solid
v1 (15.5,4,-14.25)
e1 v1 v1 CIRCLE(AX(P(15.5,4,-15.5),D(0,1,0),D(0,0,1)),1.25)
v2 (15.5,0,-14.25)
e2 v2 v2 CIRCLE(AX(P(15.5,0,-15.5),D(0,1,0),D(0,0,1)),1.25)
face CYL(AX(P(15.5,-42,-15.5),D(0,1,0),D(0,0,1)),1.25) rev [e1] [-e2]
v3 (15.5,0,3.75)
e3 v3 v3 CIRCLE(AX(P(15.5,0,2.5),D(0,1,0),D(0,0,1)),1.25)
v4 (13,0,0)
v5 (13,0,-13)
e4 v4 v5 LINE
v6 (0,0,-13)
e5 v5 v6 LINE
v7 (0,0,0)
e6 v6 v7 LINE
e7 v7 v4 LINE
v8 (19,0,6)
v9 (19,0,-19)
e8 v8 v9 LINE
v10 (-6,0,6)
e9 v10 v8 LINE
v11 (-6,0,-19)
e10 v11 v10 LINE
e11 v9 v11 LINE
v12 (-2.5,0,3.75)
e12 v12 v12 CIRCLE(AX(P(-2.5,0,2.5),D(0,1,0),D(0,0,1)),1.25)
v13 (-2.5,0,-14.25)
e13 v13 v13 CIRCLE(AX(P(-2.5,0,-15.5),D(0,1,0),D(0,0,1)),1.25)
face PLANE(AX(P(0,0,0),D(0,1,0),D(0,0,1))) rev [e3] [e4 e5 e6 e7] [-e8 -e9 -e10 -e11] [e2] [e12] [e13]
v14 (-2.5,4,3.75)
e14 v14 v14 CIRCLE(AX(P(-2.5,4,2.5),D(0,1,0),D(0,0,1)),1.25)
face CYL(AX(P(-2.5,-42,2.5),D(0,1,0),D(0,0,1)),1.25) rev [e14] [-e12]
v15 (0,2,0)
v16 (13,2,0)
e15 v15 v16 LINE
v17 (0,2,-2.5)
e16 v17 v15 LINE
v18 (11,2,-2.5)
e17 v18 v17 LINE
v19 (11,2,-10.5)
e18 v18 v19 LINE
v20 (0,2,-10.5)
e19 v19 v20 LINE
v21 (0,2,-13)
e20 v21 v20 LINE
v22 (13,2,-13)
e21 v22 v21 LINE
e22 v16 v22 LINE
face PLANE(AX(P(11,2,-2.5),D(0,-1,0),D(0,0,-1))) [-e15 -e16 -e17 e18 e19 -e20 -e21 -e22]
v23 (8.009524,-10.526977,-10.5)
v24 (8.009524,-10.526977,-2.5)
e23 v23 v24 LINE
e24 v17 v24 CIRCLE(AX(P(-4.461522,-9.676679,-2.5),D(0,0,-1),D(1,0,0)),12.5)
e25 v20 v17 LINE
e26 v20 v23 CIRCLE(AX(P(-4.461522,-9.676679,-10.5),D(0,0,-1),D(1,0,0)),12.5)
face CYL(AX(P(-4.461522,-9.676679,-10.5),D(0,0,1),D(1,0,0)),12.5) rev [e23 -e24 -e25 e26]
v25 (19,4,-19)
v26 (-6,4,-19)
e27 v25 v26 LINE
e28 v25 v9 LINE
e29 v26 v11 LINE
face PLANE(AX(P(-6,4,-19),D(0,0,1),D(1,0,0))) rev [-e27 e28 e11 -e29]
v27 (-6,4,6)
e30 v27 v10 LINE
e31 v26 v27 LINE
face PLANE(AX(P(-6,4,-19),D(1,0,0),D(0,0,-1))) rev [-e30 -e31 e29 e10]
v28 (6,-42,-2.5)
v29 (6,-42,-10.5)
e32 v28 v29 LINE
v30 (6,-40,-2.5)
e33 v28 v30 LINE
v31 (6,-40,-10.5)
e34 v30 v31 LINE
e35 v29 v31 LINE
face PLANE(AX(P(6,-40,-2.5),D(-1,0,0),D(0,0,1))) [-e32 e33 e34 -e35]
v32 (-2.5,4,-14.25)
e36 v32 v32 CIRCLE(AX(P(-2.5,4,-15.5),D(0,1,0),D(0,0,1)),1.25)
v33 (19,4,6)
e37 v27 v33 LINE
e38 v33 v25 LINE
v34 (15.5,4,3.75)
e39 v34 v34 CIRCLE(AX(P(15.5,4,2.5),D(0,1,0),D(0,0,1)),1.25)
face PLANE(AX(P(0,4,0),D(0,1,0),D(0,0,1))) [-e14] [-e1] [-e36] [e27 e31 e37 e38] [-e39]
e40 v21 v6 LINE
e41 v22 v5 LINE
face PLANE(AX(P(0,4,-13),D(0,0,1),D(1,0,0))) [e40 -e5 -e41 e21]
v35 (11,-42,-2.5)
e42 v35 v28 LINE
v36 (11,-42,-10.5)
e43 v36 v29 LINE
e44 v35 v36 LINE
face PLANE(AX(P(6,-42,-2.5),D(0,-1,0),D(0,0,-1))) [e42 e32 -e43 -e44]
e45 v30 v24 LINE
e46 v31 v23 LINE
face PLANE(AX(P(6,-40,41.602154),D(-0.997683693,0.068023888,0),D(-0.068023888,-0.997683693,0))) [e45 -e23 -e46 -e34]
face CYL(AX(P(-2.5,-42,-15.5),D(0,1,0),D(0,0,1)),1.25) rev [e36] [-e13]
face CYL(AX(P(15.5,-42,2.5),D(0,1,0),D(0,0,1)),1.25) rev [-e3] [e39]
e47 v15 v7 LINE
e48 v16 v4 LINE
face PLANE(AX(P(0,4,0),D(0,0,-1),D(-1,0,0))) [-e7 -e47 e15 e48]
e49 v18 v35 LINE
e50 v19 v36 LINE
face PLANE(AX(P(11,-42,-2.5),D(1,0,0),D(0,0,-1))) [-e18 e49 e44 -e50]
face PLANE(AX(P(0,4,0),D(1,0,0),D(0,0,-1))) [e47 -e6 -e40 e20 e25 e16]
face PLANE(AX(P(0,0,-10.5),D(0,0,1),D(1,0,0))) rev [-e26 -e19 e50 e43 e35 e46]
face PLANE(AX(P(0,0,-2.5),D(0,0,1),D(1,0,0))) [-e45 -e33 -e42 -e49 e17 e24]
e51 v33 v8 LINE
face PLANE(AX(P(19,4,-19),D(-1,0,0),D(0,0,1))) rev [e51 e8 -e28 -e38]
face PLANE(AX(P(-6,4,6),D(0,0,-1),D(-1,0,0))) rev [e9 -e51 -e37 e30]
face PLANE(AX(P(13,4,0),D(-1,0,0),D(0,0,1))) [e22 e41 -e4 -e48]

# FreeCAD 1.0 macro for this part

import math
import FreeCAD as App
import Part
import Sketcher


def add_polygon(sketch, points):
    """Adds a closed chain of lines whose ends are joined by coincident constraints."""
    first, n = sketch.GeometryCount, len(points)
    for a, b in zip(points, points[1:] + points[:1]):
        sketch.addGeometry(Part.LineSegment(App.Vector(*a, 0), App.Vector(*b, 0)), False)
    for i in range(n):
        sketch.addConstraint(Sketcher.Constraint("Coincident", first + i, 2, first + (i + 1) % n, 1))

doc = App.newDocument("Part")
body = doc.addObject("PartDesign::Body", "Body")

# Sketch on XZ plane
sketch1 = doc.addObject("Sketcher::SketchObject", "Sketch")
body.addObject(sketch1)
sketch1.AttachmentSupport = (doc.XZ_Plane, [""])
sketch1.MapMode = "FlatFace"
add_polygon(sketch1, [(-6, -19), (-6, 6), (19, 6), (19, -19)])  # lines 0-3
add_polygon(sketch1, [(13, 0), (0, 0), (0, -13), (13, -13)])  # lines 4-7
sketch1.addConstraint([
    Sketcher.Constraint("Vertical", 0),
    Sketcher.Constraint("Horizontal", 1),
    Sketcher.Constraint("Vertical", 2),
    Sketcher.Constraint("Horizontal", 3),
    Sketcher.Constraint("Horizontal", 4),
    Sketcher.Constraint("Vertical", 5),
    Sketcher.Constraint("Horizontal", 6),
    Sketcher.Constraint("Vertical", 7),
    Sketcher.Constraint("Coincident", 4, 2, -1, 1),
    Sketcher.Constraint("Equal", 3, 0),
    Sketcher.Constraint("Equal", 6, 5),
    Sketcher.Constraint("DistanceX", 1, 1, 1, 2, 25.0),
    Sketcher.Constraint("DistanceX", 4, 2, 4, 1, 13.0),
    Sketcher.Constraint("DistanceX", 0, 2, -1, 1, 6.0),
    Sketcher.Constraint("DistanceY", -1, 1, 0, 2, 6.0),
])
pad1 = doc.addObject("PartDesign::Pad", "Pad")
body.addObject(pad1)
pad1.Profile = sketch1
pad1.Length = 4
pad1.Reversed = True

# Sketch on XY plane
sketch2 = doc.addObject("Sketcher::SketchObject", "Sketch001")
body.addObject(sketch2)
sketch2.AttachmentSupport = (doc.XY_Plane, [""])
sketch2.MapMode = "FlatFace"
sketch2.AttachmentOffset = App.Placement(App.Vector(0, 0, -6.5), App.Rotation())
add_polygon(sketch2, [(9, 4), (13, 4), (13, 2), (11, 2), (11, -42), (6, -42), (6, -40), (9, -40)])  # lines 0-7
sketch2.addConstraint([
    Sketcher.Constraint("Horizontal", 0),
    Sketcher.Constraint("Vertical", 1),
    Sketcher.Constraint("Horizontal", 2),
    Sketcher.Constraint("Vertical", 3),
    Sketcher.Constraint("Horizontal", 4),
    Sketcher.Constraint("Vertical", 5),
    Sketcher.Constraint("Horizontal", 6),
    Sketcher.Constraint("Vertical", 7),
    Sketcher.Constraint("Equal", 2, 1),
    Sketcher.Constraint("Equal", 1, 5),
    Sketcher.Constraint("DistanceX", 0, 1, 0, 2, 4.0),
    Sketcher.Constraint("DistanceX", 2, 2, 2, 1, 2.0),
    Sketcher.Constraint("DistanceX", 4, 2, 4, 1, 5.0),
    Sketcher.Constraint("DistanceY", 3, 2, 3, 1, 44.0),
    Sketcher.Constraint("DistanceX", -1, 1, 0, 2, 13.0),
    Sketcher.Constraint("DistanceY", -1, 1, 0, 2, 4.0),
])
pad2 = doc.addObject("PartDesign::Pad", "Pad001")
body.addObject(pad2)
pad2.Profile = sketch2
pad2.Type = "TwoLengths"
pad2.Length = 4
pad2.Length2 = 4
pad2.Reversed = True

# Sketch on XY plane
sketch3 = doc.addObject("Sketcher::SketchObject", "Sketch002")
body.addObject(sketch3)
sketch3.AttachmentSupport = (doc.XY_Plane, [""])
sketch3.MapMode = "FlatFace"
sketch3.AttachmentOffset = App.Placement(App.Vector(0, 0, -10.5), App.Rotation())
add_polygon(sketch3, [(9, 4), (9, -40), (6, -40)])  # lines 0-2
sketch3.addConstraint([
    Sketcher.Constraint("Vertical", 0),
    Sketcher.Constraint("Horizontal", 1),
    Sketcher.Constraint("DistanceX", 1, 2, 1, 1, 3.0),
    Sketcher.Constraint("DistanceY", 0, 2, 0, 1, 44.0),
    Sketcher.Constraint("DistanceX", -1, 1, 0, 2, 9.0),
    Sketcher.Constraint("DistanceY", 0, 2, -1, 1, 40.0),
])
pad3 = doc.addObject("PartDesign::Pad", "Pad002")
body.addObject(pad3)
pad3.Profile = sketch3
pad3.Length = 8

# Sketch on XY plane
sketch4 = doc.addObject("Sketcher::SketchObject", "Sketch003")
body.addObject(sketch4)
sketch4.AttachmentSupport = (doc.XY_Plane, [""])
sketch4.MapMode = "FlatFace"
sketch4.AttachmentOffset = App.Placement(App.Vector(0, 0, -2.5), App.Rotation())
sketch4.addGeometry([
    Part.LineSegment(App.Vector(9, 4, 0), App.Vector(0, 4, 0)),
    Part.LineSegment(App.Vector(0, 4, 0), App.Vector(0, 2, 0)),
    Part.ArcOfCircle(Part.Circle(App.Vector(-4.5, -9.7, 0), App.Vector(0, 0, 1), 12.5), math.radians(-4), math.radians(69)),
    Part.LineSegment(App.Vector(8, -10.5, 0), App.Vector(9, 4, 0)),
], False)
sketch4.addConstraint([
    Sketcher.Constraint("Coincident", 0, 2, 1, 1),
    Sketcher.Constraint("Coincident", 1, 2, 2, 2),
    Sketcher.Constraint("Tangent", 2, 1, 3, 1),
    Sketcher.Constraint("Coincident", 3, 2, 0, 1),
    Sketcher.Constraint("Horizontal", 0),
    Sketcher.Constraint("Vertical", 1),
    Sketcher.Constraint("PointOnObject", 0, 2, -2),
    Sketcher.Constraint("Radius", 2, 12.5),
    Sketcher.Constraint("DistanceX", 0, 2, 0, 1, 9.0),
    Sketcher.Constraint("DistanceY", 1, 2, 1, 1, 2.0),
    Sketcher.Constraint("DistanceY", -1, 1, 0, 2, 4.0),
    Sketcher.Constraint("DistanceY", 2, 1, 2, 3, 0.850299),
])
pad4 = doc.addObject("PartDesign::Pad", "Pad003")
body.addObject(pad4)
pad4.Profile = sketch4
pad4.Length = 8
pad4.Reversed = True

# Sketch on XZ plane
sketch5 = doc.addObject("Sketcher::SketchObject", "Sketch004")
body.addObject(sketch5)
sketch5.AttachmentSupport = (doc.XZ_Plane, [""])
sketch5.MapMode = "FlatFace"
sketch5.AttachmentOffset = App.Placement(App.Vector(0, 0, -4), App.Rotation())
add_polygon(sketch5, [(0, -13), (0, 0), (13, 0), (13, -13)])  # lines 0-3
sketch5.addConstraint([
    Sketcher.Constraint("Vertical", 0),
    Sketcher.Constraint("Horizontal", 1),
    Sketcher.Constraint("Vertical", 2),
    Sketcher.Constraint("Horizontal", 3),
    Sketcher.Constraint("PointOnObject", 0, 2, -2),
    Sketcher.Constraint("DistanceX", 1, 1, 1, 2, 13.0),
    Sketcher.Constraint("DistanceY", 2, 2, -1, 1, 13.0),
    Sketcher.Constraint("DistanceY", 0, 1, 0, 2, 13.001688),
])
pad5 = doc.addObject("PartDesign::Pad", "Pad004")
body.addObject(pad5)
pad5.Profile = sketch5
pad5.Length = 2

# Sketch on XZ plane
sketch6 = doc.addObject("Sketcher::SketchObject", "Sketch005")
body.addObject(sketch6)
sketch6.AttachmentSupport = (doc.XZ_Plane, [""])
sketch6.MapMode = "FlatFace"
sketch6.AttachmentOffset = App.Placement(App.Vector(0, 0, -4), App.Rotation())
sketch6.addGeometry([
    Part.Circle(App.Vector(-2.5, -15.5, 0), App.Vector(0, 0, 1), 1.2),
    Part.Circle(App.Vector(15.5, -15.5, 0), App.Vector(0, 0, 1), 1.2),
    Part.Circle(App.Vector(-2.5, 2.5, 0), App.Vector(0, 0, 1), 1.2),
    Part.Circle(App.Vector(15.5, 2.5, 0), App.Vector(0, 0, 1), 1.2),
], False)
sketch6.addConstraint([
    Sketcher.Constraint("Equal", 0, 1),
    Sketcher.Constraint("Equal", 1, 2),
    Sketcher.Constraint("Equal", 2, 3),
    Sketcher.Constraint("Horizontal", 0, 3, 1, 3),
    Sketcher.Constraint("Horizontal", 2, 3, 3, 3),
    Sketcher.Constraint("Vertical", 0, 3, 2, 3),
    Sketcher.Constraint("Vertical", 1, 3, 3, 3),
    Sketcher.Constraint("Diameter", 0, 2.5),
    Sketcher.Constraint("DistanceX", 0, 3, 1, 3, 18.0),
    Sketcher.Constraint("DistanceY", 0, 3, 2, 3, 18.0),
    Sketcher.Constraint("DistanceX", 0, 3, -1, 1, 2.5),
    Sketcher.Constraint("DistanceY", 0, 3, -1, 1, 15.5),
])
pocket1 = doc.addObject("PartDesign::Pocket", "Pocket")
body.addObject(pocket1)
pocket1.Profile = sketch6
pocket1.Type = "ThroughAll"
pocket1.Reversed = True

doc.recompute()
